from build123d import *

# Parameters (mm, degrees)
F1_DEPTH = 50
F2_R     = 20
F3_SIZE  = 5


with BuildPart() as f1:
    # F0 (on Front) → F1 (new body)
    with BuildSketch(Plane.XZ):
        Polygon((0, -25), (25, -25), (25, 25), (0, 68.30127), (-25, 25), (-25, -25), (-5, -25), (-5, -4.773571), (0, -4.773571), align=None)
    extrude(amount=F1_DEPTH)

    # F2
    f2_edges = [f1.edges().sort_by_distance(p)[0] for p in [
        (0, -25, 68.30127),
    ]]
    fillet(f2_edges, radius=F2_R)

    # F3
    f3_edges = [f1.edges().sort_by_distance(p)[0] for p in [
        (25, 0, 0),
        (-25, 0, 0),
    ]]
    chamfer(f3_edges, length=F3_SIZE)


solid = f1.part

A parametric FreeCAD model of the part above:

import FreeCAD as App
import Part
import Sketcher
from FreeCAD import Vector
Q = App.Units.Quantity


def edges_at(feature, points):
    """Names of the edges that pass closest to the given points."""
    edges = feature.Shape.Edges
    near = lambda p: min(range(len(edges)), key=lambda i: edges[i].distToShape(Part.Vertex(*p))[0])
    return sorted({f"Edge{near(p) + 1}" for p in points})

doc = App.newDocument("Part")
body = doc.addObject("PartDesign::Body", "Body")

sketch1 = doc.addObject("Sketcher::SketchObject", "Sketch")
body.addObject(sketch1)
sketch1.AttachmentSupport = (doc.XZ_Plane, [""])
sketch1.MapMode = "FlatFace"
sketch1.addGeometry(Part.LineSegment(Vector(0, -25, 0), Vector(25, -25, 0)), False)
sketch1.addGeometry(Part.LineSegment(Vector(25, -25, 0), Vector(25, 25, 0)), False)
sketch1.addGeometry(Part.LineSegment(Vector(25, 25, 0), Vector(0, 68, 0)), False)
sketch1.addGeometry(Part.LineSegment(Vector(0, 68, 0), Vector(-25, 25, 0)), False)
sketch1.addGeometry(Part.LineSegment(Vector(-25, 25, 0), Vector(-25, -25, 0)), False)
sketch1.addGeometry(Part.LineSegment(Vector(-25, -25, 0), Vector(-5, -25, 0)), False)
sketch1.addGeometry(Part.LineSegment(Vector(-5, -25, 0), Vector(-5, -5, 0)), False)
sketch1.addGeometry(Part.LineSegment(Vector(-5, -5, 0), Vector(0, -5, 0)), False)
sketch1.addGeometry(Part.LineSegment(Vector(0, -5, 0), Vector(0, -25, 0)), False)
sketch1.addConstraint(Sketcher.Constraint("Coincident", 0, 2, 1, 1))
sketch1.addConstraint(Sketcher.Constraint("Coincident", 1, 2, 2, 1))
sketch1.addConstraint(Sketcher.Constraint("Coincident", 2, 2, 3, 1))
sketch1.addConstraint(Sketcher.Constraint("Coincident", 3, 2, 4, 1))
sketch1.addConstraint(Sketcher.Constraint("Coincident", 4, 2, 5, 1))
sketch1.addConstraint(Sketcher.Constraint("Coincident", 5, 2, 6, 1))
sketch1.addConstraint(Sketcher.Constraint("Coincident", 6, 2, 7, 1))
sketch1.addConstraint(Sketcher.Constraint("Coincident", 7, 2, 8, 1))
sketch1.addConstraint(Sketcher.Constraint("Coincident", 8, 2, 0, 1))
sketch1.addConstraint(Sketcher.Constraint("Horizontal", 0))
sketch1.addConstraint(Sketcher.Constraint("Vertical", 1))
sketch1.addConstraint(Sketcher.Constraint("Vertical", 4))
sketch1.addConstraint(Sketcher.Constraint("Horizontal", 5))
sketch1.addConstraint(Sketcher.Constraint("Vertical", 6))
sketch1.addConstraint(Sketcher.Constraint("Horizontal", 7))
sketch1.addConstraint(Sketcher.Constraint("Vertical", 8))
sketch1.addConstraint(Sketcher.Constraint("Symmetric", 0, 2, 3, 2, -1, 1))
sketch1.addConstraint(Sketcher.Constraint("PointOnObject", 2, 2, -2))
sketch1.addConstraint(Sketcher.Constraint("PointOnObject", 7, 2, -2))
sketch1.addConstraint(Sketcher.Constraint("Horizontal", 1, 2, 3, 2))
sketch1.addConstraint(Sketcher.Constraint("Horizontal", 0, 2, 4, 2))
sketch1.addConstraint(Sketcher.Constraint("DistanceX", 0, 1, 0, 2, 25.0))
sketch1.addConstraint(Sketcher.Constraint("DistanceX", 5, 1, 5, 2, 20.0))
sketch1.addConstraint(Sketcher.Constraint("DistanceY", 1, 1, 1, 2, 50.0))
sketch1.addConstraint(Sketcher.Constraint("Angle", 2, Q("120 deg")))
sketch1.addConstraint(Sketcher.Constraint("DistanceY", 6, 1, 6, 2, 20.226429))
pad1 = doc.addObject("PartDesign::Pad", "Pad")
body.addObject(pad1)
pad1.Profile = sketch1
pad1.Length = 50
doc.recompute()

fillet = doc.addObject("PartDesign::Fillet", "Fillet")
body.addObject(fillet)
fillet.Base = (pad1, edges_at(pad1, [(0, -25, 68.301)]))
fillet.Radius = 20
doc.recompute()

chamfer = doc.addObject("PartDesign::Chamfer", "Chamfer")
body.addObject(chamfer)
chamfer.Base = (fillet, edges_at(fillet, [(25, 0, 0), (-25, 0, 0)]))
chamfer.Size = 5

doc.recompute()
